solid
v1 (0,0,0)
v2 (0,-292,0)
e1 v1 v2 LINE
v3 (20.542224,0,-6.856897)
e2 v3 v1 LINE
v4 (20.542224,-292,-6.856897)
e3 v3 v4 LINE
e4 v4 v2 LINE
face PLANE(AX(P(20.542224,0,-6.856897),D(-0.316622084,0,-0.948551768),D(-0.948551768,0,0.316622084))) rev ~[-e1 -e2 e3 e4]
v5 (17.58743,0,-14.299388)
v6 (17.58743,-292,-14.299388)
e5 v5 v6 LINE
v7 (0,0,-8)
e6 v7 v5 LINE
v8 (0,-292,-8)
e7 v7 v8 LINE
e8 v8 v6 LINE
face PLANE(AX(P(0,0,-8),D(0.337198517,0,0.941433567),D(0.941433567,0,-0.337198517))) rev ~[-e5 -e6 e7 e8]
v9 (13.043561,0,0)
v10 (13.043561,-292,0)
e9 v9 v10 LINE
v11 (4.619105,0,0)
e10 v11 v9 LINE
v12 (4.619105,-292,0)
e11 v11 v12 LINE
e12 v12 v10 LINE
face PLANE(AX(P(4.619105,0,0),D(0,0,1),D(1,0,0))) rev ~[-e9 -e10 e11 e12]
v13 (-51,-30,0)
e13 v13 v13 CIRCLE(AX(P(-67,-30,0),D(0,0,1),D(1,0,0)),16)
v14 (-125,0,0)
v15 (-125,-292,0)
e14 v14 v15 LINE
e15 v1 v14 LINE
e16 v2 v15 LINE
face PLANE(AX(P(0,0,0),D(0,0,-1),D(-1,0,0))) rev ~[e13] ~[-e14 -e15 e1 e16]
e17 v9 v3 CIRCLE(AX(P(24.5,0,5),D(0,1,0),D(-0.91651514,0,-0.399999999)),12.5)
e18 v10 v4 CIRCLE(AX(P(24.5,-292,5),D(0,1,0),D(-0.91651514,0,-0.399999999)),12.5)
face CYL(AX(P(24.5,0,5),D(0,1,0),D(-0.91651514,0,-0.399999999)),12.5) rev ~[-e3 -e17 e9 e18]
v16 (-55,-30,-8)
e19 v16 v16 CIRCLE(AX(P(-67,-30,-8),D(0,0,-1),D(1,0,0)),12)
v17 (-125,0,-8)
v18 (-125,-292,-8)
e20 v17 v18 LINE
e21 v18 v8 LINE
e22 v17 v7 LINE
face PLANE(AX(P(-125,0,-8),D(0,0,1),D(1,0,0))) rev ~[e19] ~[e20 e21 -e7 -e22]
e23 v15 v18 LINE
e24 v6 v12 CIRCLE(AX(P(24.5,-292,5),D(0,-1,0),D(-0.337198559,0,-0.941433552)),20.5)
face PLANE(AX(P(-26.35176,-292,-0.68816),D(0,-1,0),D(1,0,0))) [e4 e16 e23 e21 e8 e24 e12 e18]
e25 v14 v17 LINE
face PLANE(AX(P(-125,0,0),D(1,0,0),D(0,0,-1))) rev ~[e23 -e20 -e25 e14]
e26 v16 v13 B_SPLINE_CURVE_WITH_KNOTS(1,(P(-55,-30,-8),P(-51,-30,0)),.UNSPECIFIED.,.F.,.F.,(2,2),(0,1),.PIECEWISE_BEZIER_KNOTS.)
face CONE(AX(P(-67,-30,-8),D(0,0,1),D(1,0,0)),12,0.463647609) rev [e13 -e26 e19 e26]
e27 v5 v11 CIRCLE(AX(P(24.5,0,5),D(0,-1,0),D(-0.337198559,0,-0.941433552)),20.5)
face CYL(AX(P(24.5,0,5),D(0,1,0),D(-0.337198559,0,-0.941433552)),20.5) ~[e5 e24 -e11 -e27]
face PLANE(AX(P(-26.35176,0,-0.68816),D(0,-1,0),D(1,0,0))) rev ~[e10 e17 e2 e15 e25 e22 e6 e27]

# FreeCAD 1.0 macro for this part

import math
import FreeCAD as App
import Part
import Sketcher
Q = App.Units.Quantity

doc = App.newDocument("Part")
body = doc.addObject("PartDesign::Body", "Body")

# Sketch on XZ plane
sketch1 = doc.addObject("Sketcher::SketchObject", "Sketch")
body.addObject(sketch1)
sketch1.AttachmentSupport = (doc.XZ_Plane, [""])
sketch1.MapMode = "FlatFace"
sketch1.addGeometry(Part.LineSegment(App.Vector(21, -7, 0), App.Vector(0, 0, 0)), False)
sketch1.addGeometry(Part.LineSegment(App.Vector(0, 0, 0), App.Vector(-125, 0, 0)), False)
sketch1.addGeometry(Part.LineSegment(App.Vector(-125, 0, 0), App.Vector(-125, -8, 0)), False)
sketch1.addGeometry(Part.LineSegment(App.Vector(-125, -8, 0), App.Vector(0, -8, 0)), False)
sketch1.addGeometry(Part.LineSegment(App.Vector(0, -8, 0), App.Vector(18, -14, 0)), False)
sketch1.addGeometry(Part.ArcOfCircle(Part.Circle(App.Vector(25, 5, 0), App.Vector(0, 0, 1), 21), math.radians(-110), math.radians(194)), False)
sketch1.addGeometry(Part.LineSegment(App.Vector(5, 0, 0), App.Vector(13, 0, 0)), False)
sketch1.addGeometry(Part.ArcOfCircle(Part.Circle(App.Vector(25, 5, 0), App.Vector(0, 0, 1), 12), math.radians(-108), math.radians(204)), False)
sketch1.addConstraint(Sketcher.Constraint("Coincident", 0, 2, 1, 1))
sketch1.addConstraint(Sketcher.Constraint("Coincident", 1, 2, 2, 1))
sketch1.addConstraint(Sketcher.Constraint("Coincident", 2, 2, 3, 1))
sketch1.addConstraint(Sketcher.Constraint("Coincident", 3, 2, 4, 1))
sketch1.addConstraint(Sketcher.Constraint("Tangent", 4, 2, 5, 1))
sketch1.addConstraint(Sketcher.Constraint("Coincident", 5, 2, 6, 1))
sketch1.addConstraint(Sketcher.Constraint("Coincident", 6, 2, 7, 2))
sketch1.addConstraint(Sketcher.Constraint("Tangent", 7, 1, 0, 1))
sketch1.addConstraint(Sketcher.Constraint("Horizontal", 1))
sketch1.addConstraint(Sketcher.Constraint("Vertical", 2))
sketch1.addConstraint(Sketcher.Constraint("Horizontal", 3))
sketch1.addConstraint(Sketcher.Constraint("Horizontal", 6))
sketch1.addConstraint(Sketcher.Constraint("Coincident", 0, 2, -1, 1))
sketch1.addConstraint(Sketcher.Constraint("Coincident", 7, 3, 5, 3))
sketch1.addConstraint(Sketcher.Constraint("PointOnObject", 3, 2, -2))
sketch1.addConstraint(Sketcher.Constraint("PointOnObject", 5, 2, -1))
sketch1.addConstraint(Sketcher.Constraint("Radius", 5, Q("20.5 mm")))
sketch1.addConstraint(Sketcher.Constraint("Radius", 7, Q("12.5 mm")))
sketch1.addConstraint(Sketcher.Constraint("DistanceX", 1, 2, 1, 1, Q("125 mm")))
sketch1.addConstraint(Sketcher.Constraint("DistanceY", 2, 2, 2, 1, Q("8 mm")))
sketch1.addConstraint(Sketcher.Constraint("DistanceY", -1, 1, 5, 3, Q("5 mm")))
sketch1.addConstraint(Sketcher.Constraint("DistanceX", -1, 1, 5, 3, Q("24.5 mm")))
pad1 = doc.addObject("PartDesign::Pad", "Pad")
body.addObject(pad1)
pad1.Profile = sketch1
pad1.Length = 292

# Sketch on XY plane
sketch2 = doc.addObject("Sketcher::SketchObject", "Sketch001")
body.addObject(sketch2)
sketch2.AttachmentSupport = (doc.XY_Plane, [""])
sketch2.MapMode = "FlatFace"
sketch2.AttachmentOffset = App.Placement(App.Vector(0, 0, -8), App.Rotation())
sketch2.addGeometry(Part.Circle(App.Vector(-67, -30, 0), App.Vector(0, 0, 1), 12), False)
sketch2.addConstraint(Sketcher.Constraint("Diameter", 0, Q("24 mm")))
sketch2.addConstraint(Sketcher.Constraint("DistanceX", 0, 3, -1, 1, Q("67 mm")))
sketch2.addConstraint(Sketcher.Constraint("DistanceY", 0, 3, -1, 1, Q("30 mm")))

# Sketch on XY plane
sketch3 = doc.addObject("Sketcher::SketchObject", "Sketch002")
body.addObject(sketch3)
sketch3.AttachmentSupport = (doc.XY_Plane, [""])
sketch3.MapMode = "FlatFace"
sketch3.addGeometry(Part.Circle(App.Vector(-67, -30, 0), App.Vector(0, 0, 1), 16), False)
sketch3.addConstraint(Sketcher.Constraint("Diameter", 0, Q("32 mm")))
sketch3.addConstraint(Sketcher.Constraint("DistanceX", 0, 3, -1, 1, Q("67 mm")))
sketch3.addConstraint(Sketcher.Constraint("DistanceY", 0, 3, -1, 1, Q("30 mm")))

subtractiveloft = doc.addObject("PartDesign::SubtractiveLoft", "SubtractiveLoft")
body.addObject(subtractiveloft)
subtractiveloft.Profile = sketch2
subtractiveloft.Sections = [sketch3]

doc.recompute()
